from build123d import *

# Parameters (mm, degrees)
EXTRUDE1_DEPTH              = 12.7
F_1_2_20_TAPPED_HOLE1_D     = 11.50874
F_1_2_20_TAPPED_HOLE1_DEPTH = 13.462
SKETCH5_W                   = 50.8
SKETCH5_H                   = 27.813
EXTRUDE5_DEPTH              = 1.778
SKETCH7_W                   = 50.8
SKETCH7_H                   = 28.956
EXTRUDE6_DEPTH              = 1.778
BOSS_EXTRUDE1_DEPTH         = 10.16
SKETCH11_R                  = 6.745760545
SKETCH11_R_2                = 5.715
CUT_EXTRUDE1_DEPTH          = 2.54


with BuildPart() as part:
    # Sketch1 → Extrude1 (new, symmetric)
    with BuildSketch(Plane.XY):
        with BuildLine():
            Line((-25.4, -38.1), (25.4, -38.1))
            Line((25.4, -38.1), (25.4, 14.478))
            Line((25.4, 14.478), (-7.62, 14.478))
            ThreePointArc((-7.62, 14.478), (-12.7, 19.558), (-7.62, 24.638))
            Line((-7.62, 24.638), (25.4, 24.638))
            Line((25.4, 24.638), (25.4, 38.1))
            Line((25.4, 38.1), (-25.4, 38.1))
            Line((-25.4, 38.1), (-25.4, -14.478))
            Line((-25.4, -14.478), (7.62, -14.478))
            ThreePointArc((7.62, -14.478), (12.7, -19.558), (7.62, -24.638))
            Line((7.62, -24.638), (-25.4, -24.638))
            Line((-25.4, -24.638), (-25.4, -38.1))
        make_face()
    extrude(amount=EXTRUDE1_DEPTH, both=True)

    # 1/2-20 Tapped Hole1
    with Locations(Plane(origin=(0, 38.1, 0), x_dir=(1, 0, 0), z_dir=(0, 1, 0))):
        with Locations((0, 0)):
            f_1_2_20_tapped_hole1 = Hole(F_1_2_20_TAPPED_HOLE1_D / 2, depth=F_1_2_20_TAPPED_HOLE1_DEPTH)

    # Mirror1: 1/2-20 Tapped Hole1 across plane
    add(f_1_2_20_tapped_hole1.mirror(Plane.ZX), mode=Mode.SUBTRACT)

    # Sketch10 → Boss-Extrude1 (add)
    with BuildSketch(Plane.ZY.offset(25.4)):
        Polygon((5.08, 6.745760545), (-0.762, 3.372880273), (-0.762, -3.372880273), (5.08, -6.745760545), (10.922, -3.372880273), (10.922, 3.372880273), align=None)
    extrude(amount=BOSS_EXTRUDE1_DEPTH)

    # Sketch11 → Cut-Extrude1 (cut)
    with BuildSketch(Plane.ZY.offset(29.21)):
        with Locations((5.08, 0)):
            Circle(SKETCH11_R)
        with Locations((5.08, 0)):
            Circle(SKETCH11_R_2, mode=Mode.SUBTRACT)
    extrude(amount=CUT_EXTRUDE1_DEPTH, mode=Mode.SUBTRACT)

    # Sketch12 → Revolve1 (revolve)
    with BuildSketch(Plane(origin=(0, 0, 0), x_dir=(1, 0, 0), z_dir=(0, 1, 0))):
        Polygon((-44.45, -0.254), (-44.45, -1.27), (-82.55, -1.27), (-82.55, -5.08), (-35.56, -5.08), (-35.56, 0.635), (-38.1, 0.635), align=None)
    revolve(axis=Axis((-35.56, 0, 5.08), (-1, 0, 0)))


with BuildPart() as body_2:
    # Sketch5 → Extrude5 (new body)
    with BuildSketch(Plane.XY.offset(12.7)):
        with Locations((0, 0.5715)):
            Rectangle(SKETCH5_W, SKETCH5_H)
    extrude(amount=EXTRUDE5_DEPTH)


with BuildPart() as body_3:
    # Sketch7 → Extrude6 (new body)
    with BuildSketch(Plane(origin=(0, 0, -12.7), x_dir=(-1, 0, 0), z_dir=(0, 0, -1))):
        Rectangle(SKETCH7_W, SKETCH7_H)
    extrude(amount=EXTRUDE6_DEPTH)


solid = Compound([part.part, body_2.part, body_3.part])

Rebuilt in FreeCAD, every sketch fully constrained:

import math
import FreeCAD as App
import Part
import Sketcher
from FreeCAD import Vector
Q = App.Units.Quantity

doc = App.newDocument("Part")
body = doc.addObject("PartDesign::Body", "Body")

# Sketch on XY plane
sketch1 = body.newObject("Sketcher::SketchObject", "Sketch")
sketch1.AttachmentSupport = (doc.getObject("XY_Plane"), [""])
sketch1.MapMode = "FlatFace"
sketch1.addGeometry([
    Part.LineSegment(Vector(-25.4, -38.1, 0), Vector(25.4, -38.1, 0)),  # 0
    Part.LineSegment(Vector(25.4, -38.1, 0), Vector(25.4, 14.478, 0)),  # 1
    Part.LineSegment(Vector(25.4, 14.478, 0), Vector(-7.62, 14.478, 0)),  # 2
    Part.ArcOfCircle(Part.Circle(Vector(-7.62, 19.558, 0), Vector(0, 0, 1), 5.08), math.radians(90), math.radians(270)),  # 3
    Part.LineSegment(Vector(-7.62, 24.638, 0), Vector(25.4, 24.638, 0)),  # 4
    Part.LineSegment(Vector(25.4, 24.638, 0), Vector(25.4, 38.1, 0)),  # 5
    Part.LineSegment(Vector(25.4, 38.1, 0), Vector(-25.4, 38.1, 0)),  # 6
    Part.LineSegment(Vector(-25.4, 38.1, 0), Vector(-25.4, -14.478, 0)),  # 7
    Part.LineSegment(Vector(-25.4, -14.478, 0), Vector(7.62, -14.478, 0)),  # 8
    Part.ArcOfCircle(Part.Circle(Vector(7.62, -19.558, 0), Vector(0, 0, 1), 5.08), math.radians(-90), math.radians(90)),  # 9
    Part.LineSegment(Vector(7.62, -24.638, 0), Vector(-25.4, -24.638, 0)),  # 10
    Part.LineSegment(Vector(-25.4, -24.638, 0), Vector(-25.4, -38.1, 0)),  # 11
], False)
sketch1.addConstraint([
    Sketcher.Constraint("Coincident", 0, 2, 1, 1),
    Sketcher.Constraint("Coincident", 1, 2, 2, 1),
    Sketcher.Constraint("Tangent", 2, 2, 3, 2),
    Sketcher.Constraint("Tangent", 3, 1, 4, 1),
    Sketcher.Constraint("Coincident", 4, 2, 5, 1),
    Sketcher.Constraint("Coincident", 5, 2, 6, 1),
    Sketcher.Constraint("Coincident", 6, 2, 7, 1),
    Sketcher.Constraint("Coincident", 7, 2, 8, 1),
    Sketcher.Constraint("Tangent", 8, 2, 9, 2),
    Sketcher.Constraint("Tangent", 9, 1, 10, 1),
    Sketcher.Constraint("Coincident", 10, 2, 11, 1),
    Sketcher.Constraint("Coincident", 11, 2, 0, 1),
    Sketcher.Constraint("Horizontal", 0),
    Sketcher.Constraint("Vertical", 1),
    Sketcher.Constraint("Horizontal", 2),
    Sketcher.Constraint("Horizontal", 4),
    Sketcher.Constraint("Vertical", 5),
    Sketcher.Constraint("Horizontal", 6),
    Sketcher.Constraint("Vertical", 7),
    Sketcher.Constraint("Horizontal", 8),
    Sketcher.Constraint("Horizontal", 10),
    Sketcher.Constraint("Vertical", 11),
    Sketcher.Constraint("Equal", 3, 9),
    Sketcher.Constraint("Symmetric", 3, 3, 9, 3, -1, 1),
    Sketcher.Constraint("Symmetric", 0, 2, 6, 2, -1, 1),
    Sketcher.Constraint("Vertical", 1, 2, 4, 2),
    Sketcher.Constraint("Vertical", 7, 2, 10, 2),
    Sketcher.Constraint("Radius", 3, Q("0.2 in")),
    Sketcher.Constraint("DistanceX", 0, 1, 0, 2, Q("2 in")),
    Sketcher.Constraint("DistanceX", 2, 2, 2, 1, Q("1.3 in")),
    Sketcher.Constraint("DistanceY", 1, 1, 1, 2, Q("2.07 in")),
    Sketcher.Constraint("DistanceY", 5, 1, 5, 2, Q("0.53 in")),
])
pad1 = body.newObject("PartDesign::Pad", "Pad")
pad1.Profile = sketch1
pad1.Length = Q("1 in")
pad1.Midplane = True

# Sketch on XZ plane
sketch2 = body.newObject("Sketcher::SketchObject", "Sketch001")
sketch2.AttachmentSupport = (doc.getObject("XZ_Plane"), [""])
sketch2.MapMode = "FlatFace"
sketch2.AttachmentOffset = App.Placement(Vector(0, 0, -1.5 * 25.4), App.Rotation())
sketch2.addGeometry(Part.Circle(Vector(0, 0, 0), Vector(0, 0, 1), 5.75437), False)
sketch2.addConstraint([
    Sketcher.Constraint("Coincident", 0, 3, -1, 1),
    Sketcher.Constraint("Diameter", 0, Q("0.4531 in")),
])
doc.recompute()
hole = body.newObject("PartDesign::Hole", "Hole")
hole.Profile = sketch2
hole.ThreadType = "None"
hole.Diameter = Q("0.4531 in")
hole.DepthType = "Dimension"
hole.Depth = Q("0.53 in")
hole.DrillPoint = "Flat"
hole.Reversed = True
doc.recompute()

mirrored = body.newObject("PartDesign::Mirrored", "Mirrored")
mirrored.Originals = [hole]
mirrored.MirrorPlane = (doc.getObject("XZ_Plane"), [""])
body.Tip = mirrored

# Sketch on YZ plane
sketch3 = body.newObject("Sketcher::SketchObject", "Sketch002")
sketch3.AttachmentSupport = (doc.getObject("YZ_Plane"), [""])
sketch3.MapMode = "FlatFace"
sketch3.AttachmentOffset = App.Placement(Vector(0, 0, -1 * 25.4), App.Rotation())
sketch3.addGeometry([
    Part.LineSegment(Vector(6.745761, 5.08, 0), Vector(3.37288, -0.762, 0)),  # 0
    Part.LineSegment(Vector(3.37288, -0.762, 0), Vector(-3.37288, -0.762, 0)),  # 1
    Part.LineSegment(Vector(-3.37288, -0.762, 0), Vector(-6.745761, 5.08, 0)),  # 2
    Part.LineSegment(Vector(-6.745761, 5.08, 0), Vector(-3.37288, 10.922, 0)),  # 3
    Part.LineSegment(Vector(-3.37288, 10.922, 0), Vector(3.37288, 10.922, 0)),  # 4
    Part.LineSegment(Vector(3.37288, 10.922, 0), Vector(6.745761, 5.08, 0)),  # 5
], False)
sketch3.addConstraint([
    Sketcher.Constraint("Coincident", 0, 2, 1, 1),
    Sketcher.Constraint("Coincident", 1, 2, 2, 1),
    Sketcher.Constraint("Coincident", 2, 2, 3, 1),
    Sketcher.Constraint("Coincident", 3, 2, 4, 1),
    Sketcher.Constraint("Coincident", 4, 2, 5, 1),
    Sketcher.Constraint("Coincident", 5, 2, 0, 1),
    Sketcher.Constraint("Horizontal", 1),
    Sketcher.Constraint("Horizontal", 4),
    Sketcher.Constraint("Symmetric", 2, 2, 5, 2, -2),
    Sketcher.Constraint("Parallel", 0, 3),
    Sketcher.Constraint("Parallel", 2, 5),
    Sketcher.Constraint("Vertical", 1, 2, 3, 2),
    Sketcher.Constraint("Vertical", 0, 2, 4, 2),
    Sketcher.Constraint("Angle", 0, Q("-120 deg")),
    Sketcher.Constraint("DistanceY", -1, 1, 2, 2, Q("0.2 in")),
    Sketcher.Constraint("DistanceY", 0, 2, -1, 1, Q("0.03 in")),
    Sketcher.Constraint("DistanceX", 1, 2, 1, 1, 6.745761),
])
pad2 = body.newObject("PartDesign::Pad", "Pad001")
pad2.Profile = sketch3
pad2.Length = Q("0.4 in")
pad2.Reversed = True

# Sketch on YZ plane
sketch4 = body.newObject("Sketcher::SketchObject", "Sketch003")
sketch4.AttachmentSupport = (doc.getObject("YZ_Plane"), [""])
sketch4.MapMode = "FlatFace"
sketch4.AttachmentOffset = App.Placement(Vector(0, 0, -1.15 * 25.4), App.Rotation())
sketch4.addGeometry([
    Part.Circle(Vector(0, 5.08, 0), Vector(0, 0, 1), 6.745761),
    Part.Circle(Vector(0, 5.08, 0), Vector(0, 0, 1), 5.715),
], False)
sketch4.addConstraint([
    Sketcher.Constraint("Coincident", 1, 3, 0, 3),
    Sketcher.Constraint("PointOnObject", 0, 3, -2),
    Sketcher.Constraint("Diameter", 1, Q("0.45 in")),
    Sketcher.Constraint("DistanceY", -1, 1, 0, 3, Q("0.2 in")),
    Sketcher.Constraint("Diameter", 0, 13.491521),
])
pocket1 = body.newObject("PartDesign::Pocket", "Pocket")
pocket1.Profile = sketch4
pocket1.Length = Q("0.1 in")

# Sketch on XZ plane
sketch5 = body.newObject("Sketcher::SketchObject", "Sketch004")
sketch5.AttachmentSupport = (doc.getObject("XZ_Plane"), [""])
sketch5.MapMode = "FlatFace"
sketch5.addGeometry([
    Part.LineSegment(Vector(-44.45, 0.254, 0), Vector(-44.45, 1.27, 0)),  # 0
    Part.LineSegment(Vector(-44.45, 1.27, 0), Vector(-82.55, 1.27, 0)),  # 1
    Part.LineSegment(Vector(-82.55, 1.27, 0), Vector(-82.55, 5.08, 0)),  # 2
    Part.LineSegment(Vector(-82.55, 5.08, 0), Vector(-35.56, 5.08, 0)),  # 3
    Part.LineSegment(Vector(-35.56, 5.08, 0), Vector(-35.56, -0.635, 0)),  # 4
    Part.LineSegment(Vector(-35.56, -0.635, 0), Vector(-38.1, -0.635, 0)),  # 5
    Part.LineSegment(Vector(-38.1, -0.635, 0), Vector(-44.45, 0.254, 0)),  # 6
], False)
sketch5.addGeometry(Part.LineSegment(Vector(-35.56, 5.08, 0), Vector(-82.55, 5.08, 0)), True)  # axis
sketch5.addConstraint([
    Sketcher.Constraint("Coincident", 0, 2, 1, 1),
    Sketcher.Constraint("Coincident", 1, 2, 2, 1),
    Sketcher.Constraint("Coincident", 2, 2, 3, 1),
    Sketcher.Constraint("Coincident", 3, 2, 4, 1),
    Sketcher.Constraint("Coincident", 4, 2, 5, 1),
    Sketcher.Constraint("Coincident", 5, 2, 6, 1),
    Sketcher.Constraint("Coincident", 6, 2, 0, 1),
    Sketcher.Constraint("Vertical", 0),
    Sketcher.Constraint("Horizontal", 1),
    Sketcher.Constraint("Vertical", 2),
    Sketcher.Constraint("Horizontal", 3),
    Sketcher.Constraint("Vertical", 4),
    Sketcher.Constraint("Horizontal", 5),
    Sketcher.Constraint("Horizontal", 7),
    Sketcher.Constraint("Coincident", 7, 1, 3, 2),
    Sketcher.Constraint("Vertical", 1, 2, 7, 2),
    Sketcher.Constraint("DistanceX", 1, 2, 1, 1, Q("1.5 in")),
    Sketcher.Constraint("DistanceX", 5, 2, 5, 1, Q("0.1 in")),
    Sketcher.Constraint("DistanceX", 3, 1, 3, 2, Q("1.85 in")),
    Sketcher.Constraint("DistanceY", 0, 1, 0, 2, Q("0.04 in")),
    Sketcher.Constraint("DistanceY", 2, 1, 2, 2, Q("0.15 in")),
    Sketcher.Constraint("DistanceY", -1, 1, 2, 2, Q("0.2 in")),
    Sketcher.Constraint("DistanceX", 3, 2, -1, 1, Q("1.4 in")),
    Sketcher.Constraint("DistanceY", 4, 2, 4, 1, Q("0.225 in")),
])
revolution = body.newObject("PartDesign::Revolution", "Revolution")
revolution.Profile = sketch5
revolution.ReferenceAxis = (sketch5, ["Axis0"])
revolution.Angle = 360
body2 = doc.addObject("PartDesign::Body", "Body001")

# Sketch on XY plane
sketch6 = body2.newObject("Sketcher::SketchObject", "Sketch005")
sketch6.AttachmentSupport = (doc.getObject("XY_Plane001"), [""])
sketch6.MapMode = "FlatFace"
sketch6.AttachmentOffset = App.Placement(Vector(0, 0, 0.5 * 25.4), App.Rotation())
sketch6.addGeometry([
    Part.LineSegment(Vector(-25.4, 14.478, 0), Vector(-25.4, -13.335, 0)),
    Part.LineSegment(Vector(-25.4, -13.335, 0), Vector(25.4, -13.335, 0)),
    Part.LineSegment(Vector(25.4, -13.335, 0), Vector(25.4, 14.478, 0)),
    Part.LineSegment(Vector(25.4, 14.478, 0), Vector(-25.4, 14.478, 0)),
], False)
sketch6.addConstraint([
    Sketcher.Constraint("Coincident", 0, 2, 1, 1),
    Sketcher.Constraint("Coincident", 1, 2, 2, 1),
    Sketcher.Constraint("Coincident", 2, 2, 3, 1),
    Sketcher.Constraint("Coincident", 3, 2, 0, 1),
    Sketcher.Constraint("Vertical", 0),
    Sketcher.Constraint("Horizontal", 1),
    Sketcher.Constraint("Vertical", 2),
    Sketcher.Constraint("Horizontal", 3),
    Sketcher.Constraint("DistanceX", 1, 1, 1, 2, Q("2 in")),
    Sketcher.Constraint("DistanceX", 0, 2, -1, 1, Q("1 in")),
    Sketcher.Constraint("DistanceY", 0, 2, 0, 1, Q("1.095 in")),
    Sketcher.Constraint("DistanceY", -1, 1, 2, 2, Q("0.57 in")),
])
pad3 = body2.newObject("PartDesign::Pad", "Pad002")
pad3.Profile = sketch6
pad3.Length = Q("0.07 in")
body3 = doc.addObject("PartDesign::Body", "Body002")

# Sketch on XY plane
sketch7 = body3.newObject("Sketcher::SketchObject", "Sketch006")
sketch7.AttachmentSupport = (doc.getObject("XY_Plane002"), [""])
sketch7.MapMode = "FlatFace"
sketch7.AttachmentOffset = App.Placement(Vector(0, 0, -0.5 * 25.4), App.Rotation())
sketch7.addGeometry([
    Part.LineSegment(Vector(25.4, 14.478, 0), Vector(25.4, -14.478, 0)),
    Part.LineSegment(Vector(25.4, -14.478, 0), Vector(-25.4, -14.478, 0)),
    Part.LineSegment(Vector(-25.4, -14.478, 0), Vector(-25.4, 14.478, 0)),
    Part.LineSegment(Vector(-25.4, 14.478, 0), Vector(25.4, 14.478, 0)),
], False)
sketch7.addConstraint([
    Sketcher.Constraint("Coincident", 0, 2, 1, 1),
    Sketcher.Constraint("Coincident", 1, 2, 2, 1),
    Sketcher.Constraint("Coincident", 2, 2, 3, 1),
    Sketcher.Constraint("Coincident", 3, 2, 0, 1),
    Sketcher.Constraint("Vertical", 0),
    Sketcher.Constraint("Horizontal", 1),
    Sketcher.Constraint("Vertical", 2),
    Sketcher.Constraint("Horizontal", 3),
    Sketcher.Constraint("Symmetric", 0, 2, 2, 2, -1, 1),
    Sketcher.Constraint("DistanceX", 1, 2, 1, 1, Q("2 in")),
    Sketcher.Constraint("DistanceY", 0, 2, 0, 1, Q("1.14 in")),
])
pad4 = body3.newObject("PartDesign::Pad", "Pad003")
pad4.Profile = sketch7
pad4.Length = Q("0.07 in")
pad4.Reversed = True

doc.recompute()
